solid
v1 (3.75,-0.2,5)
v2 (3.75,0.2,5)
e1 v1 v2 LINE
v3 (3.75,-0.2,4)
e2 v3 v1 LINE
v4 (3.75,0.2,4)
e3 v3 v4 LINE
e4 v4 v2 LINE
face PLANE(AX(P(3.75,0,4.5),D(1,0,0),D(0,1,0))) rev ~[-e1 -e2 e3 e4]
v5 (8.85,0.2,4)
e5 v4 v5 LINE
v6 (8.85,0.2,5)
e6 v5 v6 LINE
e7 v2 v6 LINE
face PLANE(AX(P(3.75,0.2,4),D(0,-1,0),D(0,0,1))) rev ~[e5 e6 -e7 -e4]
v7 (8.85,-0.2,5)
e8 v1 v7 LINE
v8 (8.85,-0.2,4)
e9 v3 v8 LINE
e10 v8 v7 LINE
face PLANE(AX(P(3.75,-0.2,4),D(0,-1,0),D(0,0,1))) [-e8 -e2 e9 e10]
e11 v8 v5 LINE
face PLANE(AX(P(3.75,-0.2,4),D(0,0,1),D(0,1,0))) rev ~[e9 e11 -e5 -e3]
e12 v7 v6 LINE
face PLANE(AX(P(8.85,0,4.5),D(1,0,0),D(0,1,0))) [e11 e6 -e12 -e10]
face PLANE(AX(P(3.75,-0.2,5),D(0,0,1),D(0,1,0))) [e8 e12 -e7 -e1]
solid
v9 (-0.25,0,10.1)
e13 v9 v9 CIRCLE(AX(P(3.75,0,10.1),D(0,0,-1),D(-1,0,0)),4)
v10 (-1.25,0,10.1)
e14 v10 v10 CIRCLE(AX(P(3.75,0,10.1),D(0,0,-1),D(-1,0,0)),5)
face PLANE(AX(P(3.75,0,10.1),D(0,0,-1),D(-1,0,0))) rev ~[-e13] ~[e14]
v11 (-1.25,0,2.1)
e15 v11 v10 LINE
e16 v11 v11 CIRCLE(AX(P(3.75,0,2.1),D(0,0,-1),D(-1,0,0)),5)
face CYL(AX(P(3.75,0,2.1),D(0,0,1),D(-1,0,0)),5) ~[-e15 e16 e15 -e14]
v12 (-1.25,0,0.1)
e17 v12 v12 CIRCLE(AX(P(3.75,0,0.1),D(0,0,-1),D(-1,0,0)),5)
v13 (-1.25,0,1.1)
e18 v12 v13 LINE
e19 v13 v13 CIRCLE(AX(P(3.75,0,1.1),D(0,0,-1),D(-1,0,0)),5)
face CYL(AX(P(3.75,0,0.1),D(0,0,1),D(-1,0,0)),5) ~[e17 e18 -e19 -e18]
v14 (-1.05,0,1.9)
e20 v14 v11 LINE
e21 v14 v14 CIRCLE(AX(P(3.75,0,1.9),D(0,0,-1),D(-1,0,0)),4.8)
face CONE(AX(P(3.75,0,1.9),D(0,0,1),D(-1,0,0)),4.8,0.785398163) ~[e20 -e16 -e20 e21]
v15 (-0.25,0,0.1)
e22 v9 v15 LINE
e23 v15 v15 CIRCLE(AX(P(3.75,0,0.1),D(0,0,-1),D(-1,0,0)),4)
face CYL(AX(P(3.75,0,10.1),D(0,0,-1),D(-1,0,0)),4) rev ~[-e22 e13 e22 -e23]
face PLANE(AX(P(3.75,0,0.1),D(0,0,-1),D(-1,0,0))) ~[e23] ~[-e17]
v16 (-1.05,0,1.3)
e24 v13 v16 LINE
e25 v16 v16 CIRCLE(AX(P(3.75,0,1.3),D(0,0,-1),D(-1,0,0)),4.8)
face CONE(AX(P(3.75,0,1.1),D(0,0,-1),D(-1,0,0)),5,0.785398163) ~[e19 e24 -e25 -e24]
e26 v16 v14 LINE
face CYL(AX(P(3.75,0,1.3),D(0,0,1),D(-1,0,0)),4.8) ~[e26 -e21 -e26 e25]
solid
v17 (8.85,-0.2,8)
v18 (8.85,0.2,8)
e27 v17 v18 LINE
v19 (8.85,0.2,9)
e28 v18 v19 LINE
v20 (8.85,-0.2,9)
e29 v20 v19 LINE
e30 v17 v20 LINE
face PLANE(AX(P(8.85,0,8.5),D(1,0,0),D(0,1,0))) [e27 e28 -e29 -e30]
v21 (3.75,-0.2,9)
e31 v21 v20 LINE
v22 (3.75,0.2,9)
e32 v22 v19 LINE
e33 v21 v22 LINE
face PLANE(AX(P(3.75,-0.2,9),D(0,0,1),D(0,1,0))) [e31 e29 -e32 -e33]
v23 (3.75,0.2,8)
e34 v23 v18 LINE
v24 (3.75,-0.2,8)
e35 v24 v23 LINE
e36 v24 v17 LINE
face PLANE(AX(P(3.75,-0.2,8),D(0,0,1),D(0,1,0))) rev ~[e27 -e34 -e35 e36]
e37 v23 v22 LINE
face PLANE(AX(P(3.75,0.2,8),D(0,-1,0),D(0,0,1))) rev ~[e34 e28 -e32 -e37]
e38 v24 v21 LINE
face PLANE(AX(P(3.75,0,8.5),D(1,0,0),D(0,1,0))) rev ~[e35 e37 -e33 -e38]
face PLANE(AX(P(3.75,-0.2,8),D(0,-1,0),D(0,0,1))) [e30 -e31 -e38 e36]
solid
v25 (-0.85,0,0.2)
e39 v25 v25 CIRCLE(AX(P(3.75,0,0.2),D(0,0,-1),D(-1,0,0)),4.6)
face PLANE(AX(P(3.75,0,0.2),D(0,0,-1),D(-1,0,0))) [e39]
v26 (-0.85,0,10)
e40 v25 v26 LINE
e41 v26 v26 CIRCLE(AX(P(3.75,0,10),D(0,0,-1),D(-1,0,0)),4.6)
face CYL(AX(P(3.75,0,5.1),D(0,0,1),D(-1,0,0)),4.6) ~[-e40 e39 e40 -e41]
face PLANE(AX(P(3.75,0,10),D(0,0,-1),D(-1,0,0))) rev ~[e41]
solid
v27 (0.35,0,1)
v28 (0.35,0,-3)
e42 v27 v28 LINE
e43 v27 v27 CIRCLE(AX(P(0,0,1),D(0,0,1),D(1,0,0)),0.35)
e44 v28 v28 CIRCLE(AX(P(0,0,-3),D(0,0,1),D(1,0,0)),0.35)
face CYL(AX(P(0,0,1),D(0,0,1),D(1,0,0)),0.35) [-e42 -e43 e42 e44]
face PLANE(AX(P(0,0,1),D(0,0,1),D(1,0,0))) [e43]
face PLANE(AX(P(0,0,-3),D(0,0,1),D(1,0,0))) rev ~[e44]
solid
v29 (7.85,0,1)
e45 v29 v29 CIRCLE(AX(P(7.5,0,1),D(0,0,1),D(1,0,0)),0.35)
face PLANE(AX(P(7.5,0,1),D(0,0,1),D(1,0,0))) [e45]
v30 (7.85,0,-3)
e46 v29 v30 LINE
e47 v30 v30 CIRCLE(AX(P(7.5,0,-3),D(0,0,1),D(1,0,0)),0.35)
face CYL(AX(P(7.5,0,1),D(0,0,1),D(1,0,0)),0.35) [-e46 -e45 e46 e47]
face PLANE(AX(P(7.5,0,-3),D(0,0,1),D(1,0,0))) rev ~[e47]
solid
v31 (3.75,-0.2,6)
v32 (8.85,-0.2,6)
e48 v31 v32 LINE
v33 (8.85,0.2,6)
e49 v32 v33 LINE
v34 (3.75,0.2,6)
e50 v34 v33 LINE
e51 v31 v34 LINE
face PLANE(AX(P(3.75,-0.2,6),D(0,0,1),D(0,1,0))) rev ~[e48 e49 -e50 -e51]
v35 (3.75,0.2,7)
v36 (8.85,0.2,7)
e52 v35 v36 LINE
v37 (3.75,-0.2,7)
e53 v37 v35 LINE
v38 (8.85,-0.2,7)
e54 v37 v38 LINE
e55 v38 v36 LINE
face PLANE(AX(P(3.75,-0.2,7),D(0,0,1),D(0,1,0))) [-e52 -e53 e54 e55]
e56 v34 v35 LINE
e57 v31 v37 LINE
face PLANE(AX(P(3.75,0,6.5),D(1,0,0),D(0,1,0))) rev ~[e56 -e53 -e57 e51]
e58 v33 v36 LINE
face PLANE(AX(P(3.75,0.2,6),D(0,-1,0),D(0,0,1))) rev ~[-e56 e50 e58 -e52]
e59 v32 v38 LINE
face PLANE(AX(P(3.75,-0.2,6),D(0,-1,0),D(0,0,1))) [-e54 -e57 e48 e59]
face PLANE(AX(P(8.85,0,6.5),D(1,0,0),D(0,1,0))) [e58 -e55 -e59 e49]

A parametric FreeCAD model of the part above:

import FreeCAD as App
import Part
import Sketcher
Q = App.Units.Quantity

doc = App.newDocument("Part")
body = doc.addObject("PartDesign::Body", "Body")

# Sketch on XZ plane
sketch1 = body.newObject("Sketcher::SketchObject", "Sketch")
sketch1.AttachmentSupport = (doc.getObject("XZ_Plane"), [""])
sketch1.MapMode = "FlatFace"
sketch1.addGeometry([
    Part.LineSegment(App.Vector(-1.25, 1.1, 0), App.Vector(-1.25, 0.1, 0)),  # 0
    Part.LineSegment(App.Vector(-1.25, 0.1, 0), App.Vector(-0.25, 0.1, 0)),  # 1
    Part.LineSegment(App.Vector(-0.25, 0.1, 0), App.Vector(-0.25, 10.1, 0)),  # 2
    Part.LineSegment(App.Vector(-0.25, 10.1, 0), App.Vector(-1.25, 10.1, 0)),  # 3
    Part.LineSegment(App.Vector(-1.25, 10.1, 0), App.Vector(-1.25, 2.1, 0)),  # 4
    Part.LineSegment(App.Vector(-1.25, 2.1, 0), App.Vector(-1.05, 1.9, 0)),  # 5
    Part.LineSegment(App.Vector(-1.05, 1.9, 0), App.Vector(-1.05, 1.3, 0)),  # 6
    Part.LineSegment(App.Vector(-1.05, 1.3, 0), App.Vector(-1.25, 1.1, 0)),  # 7
], False)
sketch1.addGeometry(Part.LineSegment(App.Vector(3.75, 10.1, 0), App.Vector(3.75, 0.1, 0)), True)  # axis
sketch1.addConstraint([
    Sketcher.Constraint("Coincident", 0, 2, 1, 1),
    Sketcher.Constraint("Coincident", 1, 2, 2, 1),
    Sketcher.Constraint("Coincident", 2, 2, 3, 1),
    Sketcher.Constraint("Coincident", 3, 2, 4, 1),
    Sketcher.Constraint("Coincident", 4, 2, 5, 1),
    Sketcher.Constraint("Coincident", 5, 2, 6, 1),
    Sketcher.Constraint("Coincident", 6, 2, 7, 1),
    Sketcher.Constraint("Coincident", 7, 2, 0, 1),
    Sketcher.Constraint("Vertical", 0),
    Sketcher.Constraint("Horizontal", 1),
    Sketcher.Constraint("Vertical", 2),
    Sketcher.Constraint("Horizontal", 3),
    Sketcher.Constraint("Vertical", 4),
    Sketcher.Constraint("Vertical", 6),
    Sketcher.Constraint("Vertical", 8),
    Sketcher.Constraint("Perpendicular", 5, 7),
    Sketcher.Constraint("Horizontal", 3, 2, 8, 1),
    Sketcher.Constraint("Horizontal", 1, 2, 8, 2),
    Sketcher.Constraint("Vertical", 0, 2, 3, 2),
    Sketcher.Constraint("Equal", 3, 0),
    Sketcher.Constraint("Equal", 5, 7),
    Sketcher.Constraint("DistanceX", 1, 1, 1, 2, Q("1 mm")),
    Sketcher.Constraint("DistanceY", 2, 1, 2, 2, Q("10 mm")),
    Sketcher.Constraint("DistanceY", 4, 2, 4, 1, Q("8 mm")),
    Sketcher.Constraint("DistanceY", 6, 2, 6, 1, Q("0.6 mm")),
    Sketcher.Constraint("DistanceX", 2, 2, 8, 1, Q("4 mm")),
    Sketcher.Constraint("DistanceY", -1, 1, 0, 2, Q("0.1 mm")),
    Sketcher.Constraint("DistanceX", 0, 2, -1, 1, Q("1.25 mm")),
])
revolution = body.newObject("PartDesign::Revolution", "Revolution")
revolution.Profile = sketch1
revolution.ReferenceAxis = (sketch1, ["Axis0"])
revolution.Angle = 360
body2 = doc.addObject("PartDesign::Body", "Body001")

# Sketch on XZ plane
sketch2 = body2.newObject("Sketcher::SketchObject", "Sketch001")
sketch2.AttachmentSupport = (doc.getObject("XZ_Plane001"), [""])
sketch2.MapMode = "FlatFace"
sketch2.addGeometry([
    Part.LineSegment(App.Vector(-0.8, 10, 0), App.Vector(-0.8, 0.2, 0)),
    Part.LineSegment(App.Vector(-0.8, 0.2, 0), App.Vector(3.8, 0.2, 0)),
    Part.LineSegment(App.Vector(3.8, 0.2, 0), App.Vector(3.8, 10, 0)),
    Part.LineSegment(App.Vector(3.8, 10, 0), App.Vector(-0.8, 10, 0)),
], False)
sketch2.addGeometry(Part.LineSegment(App.Vector(3.8, 10, 0), App.Vector(3.8, 0.2, 0)), True)  # axis
sketch2.addConstraint([
    Sketcher.Constraint("Coincident", 0, 2, 1, 1),
    Sketcher.Constraint("Coincident", 1, 2, 2, 1),
    Sketcher.Constraint("Coincident", 2, 2, 3, 1),
    Sketcher.Constraint("Coincident", 3, 2, 0, 1),
    Sketcher.Constraint("Vertical", 0),
    Sketcher.Constraint("Horizontal", 1),
    Sketcher.Constraint("Vertical", 2),
    Sketcher.Constraint("Horizontal", 3),
    Sketcher.Constraint("Vertical", 4),
    Sketcher.Constraint("Coincident", 4, 1, 2, 2),
    Sketcher.Constraint("Horizontal", 0, 2, 4, 2),
    Sketcher.Constraint("DistanceX", 1, 1, 1, 2, Q("4.6 mm")),
    Sketcher.Constraint("DistanceY", 0, 2, 0, 1, Q("9.8 mm")),
    Sketcher.Constraint("DistanceY", -1, 1, 2, 2, Q("10 mm")),
    Sketcher.Constraint("DistanceX", 0, 2, -1, 1, Q("0.85 mm")),
])
revolution2 = body2.newObject("PartDesign::Revolution", "Revolution001")
revolution2.Profile = sketch2
revolution2.ReferenceAxis = (sketch2, ["Axis0"])
revolution2.Angle = 360
body3 = doc.addObject("PartDesign::Body", "Body002")
body3.AllowCompound = True

# Sketch on XY plane
sketch3 = body3.newObject("Sketcher::SketchObject", "Sketch002")
sketch3.AttachmentSupport = (doc.getObject("XY_Plane002"), [""])
sketch3.MapMode = "FlatFace"
sketch3.AttachmentOffset = App.Placement(App.Vector(0, 0, 1), App.Rotation())
sketch3.addGeometry([
    Part.Circle(App.Vector(0, 0, 0), App.Vector(0, 0, 1), 0.35),
    Part.Circle(App.Vector(7.5, 0, 0), App.Vector(0, 0, 1), 0.35),
], False)
sketch3.addConstraint([
    Sketcher.Constraint("Coincident", 0, 3, -1, 1),
    Sketcher.Constraint("Equal", 0, 1),
    Sketcher.Constraint("PointOnObject", 1, 3, -1),
    Sketcher.Constraint("Diameter", 0, Q("0.7 mm")),
    Sketcher.Constraint("DistanceX", -1, 1, 1, 3, Q("7.5 mm")),
])
pad1 = body3.newObject("PartDesign::Pad", "Pad")
pad1.Profile = sketch3
pad1.Length = 4
pad1.Reversed = True
body4 = doc.addObject("PartDesign::Body", "Body003")
body4.AllowCompound = True

# Sketch on YZ plane
sketch4 = body4.newObject("Sketcher::SketchObject", "Sketch003")
sketch4.AttachmentSupport = (doc.getObject("YZ_Plane003"), [""])
sketch4.MapMode = "FlatFace"
sketch4.AttachmentOffset = App.Placement(App.Vector(0, 0, 3.75), App.Rotation())
sketch4.addGeometry([
    Part.LineSegment(App.Vector(-0.2, 5, 0), App.Vector(-0.2, 4, 0)),  # 0
    Part.LineSegment(App.Vector(-0.2, 4, 0), App.Vector(0.2, 4, 0)),  # 1
    Part.LineSegment(App.Vector(0.2, 4, 0), App.Vector(0.2, 5, 0)),  # 2
    Part.LineSegment(App.Vector(0.2, 5, 0), App.Vector(-0.2, 5, 0)),  # 3
    Part.LineSegment(App.Vector(-0.2, 7, 0), App.Vector(-0.2, 6, 0)),  # 4
    Part.LineSegment(App.Vector(-0.2, 6, 0), App.Vector(0.2, 6, 0)),  # 5
    Part.LineSegment(App.Vector(0.2, 6, 0), App.Vector(0.2, 7, 0)),  # 6
    Part.LineSegment(App.Vector(0.2, 7, 0), App.Vector(-0.2, 7, 0)),  # 7
    Part.LineSegment(App.Vector(-0.2, 9, 0), App.Vector(-0.2, 8, 0)),  # 8
    Part.LineSegment(App.Vector(-0.2, 8, 0), App.Vector(0.2, 8, 0)),  # 9
    Part.LineSegment(App.Vector(0.2, 8, 0), App.Vector(0.2, 9, 0)),  # 10
    Part.LineSegment(App.Vector(0.2, 9, 0), App.Vector(-0.2, 9, 0)),  # 11
], False)
sketch4.addConstraint([
    Sketcher.Constraint("Coincident", 0, 2, 1, 1),
    Sketcher.Constraint("Coincident", 1, 2, 2, 1),
    Sketcher.Constraint("Coincident", 2, 2, 3, 1),
    Sketcher.Constraint("Coincident", 3, 2, 0, 1),
    Sketcher.Constraint("Coincident", 4, 2, 5, 1),
    Sketcher.Constraint("Coincident", 5, 2, 6, 1),
    Sketcher.Constraint("Coincident", 6, 2, 7, 1),
    Sketcher.Constraint("Coincident", 7, 2, 4, 1),
    Sketcher.Constraint("Coincident", 8, 2, 9, 1),
    Sketcher.Constraint("Coincident", 9, 2, 10, 1),
    Sketcher.Constraint("Coincident", 10, 2, 11, 1),
    Sketcher.Constraint("Coincident", 11, 2, 8, 1),
    Sketcher.Constraint("Vertical", 0),
    Sketcher.Constraint("Horizontal", 1),
    Sketcher.Constraint("Vertical", 2),
    Sketcher.Constraint("Horizontal", 3),
    Sketcher.Constraint("Vertical", 4),
    Sketcher.Constraint("Horizontal", 5),
    Sketcher.Constraint("Vertical", 6),
    Sketcher.Constraint("Horizontal", 7),
    Sketcher.Constraint("Vertical", 8),
    Sketcher.Constraint("Horizontal", 9),
    Sketcher.Constraint("Vertical", 10),
    Sketcher.Constraint("Horizontal", 11),
    Sketcher.Constraint("Vertical", 3, 2, 4, 2),
    Sketcher.Constraint("Vertical", 2, 2, 5, 2),
    Sketcher.Constraint("Vertical", 7, 2, 8, 2),
    Sketcher.Constraint("Vertical", 6, 2, 9, 2),
    Sketcher.Constraint("Equal", 2, 4),
    Sketcher.Constraint("Equal", 6, 8),
    Sketcher.Constraint("DistanceY", 0, 2, 0, 1, Q("1 mm")),
    Sketcher.Constraint("DistanceX", 1, 1, 1, 2, Q("0.4 mm")),
    Sketcher.Constraint("DistanceY", -1, 1, 0, 2, Q("4 mm")),
    Sketcher.Constraint("DistanceY", -1, 1, 4, 2, Q("6 mm")),
    Sketcher.Constraint("DistanceY", -1, 1, 8, 2, Q("8 mm")),
    Sketcher.Constraint("DistanceX", 0, 2, -1, 1, Q("0.2 mm")),
])
pad2 = body4.newObject("PartDesign::Pad", "Pad001")
pad2.Profile = sketch4
pad2.Length = 5.1

doc.recompute()
